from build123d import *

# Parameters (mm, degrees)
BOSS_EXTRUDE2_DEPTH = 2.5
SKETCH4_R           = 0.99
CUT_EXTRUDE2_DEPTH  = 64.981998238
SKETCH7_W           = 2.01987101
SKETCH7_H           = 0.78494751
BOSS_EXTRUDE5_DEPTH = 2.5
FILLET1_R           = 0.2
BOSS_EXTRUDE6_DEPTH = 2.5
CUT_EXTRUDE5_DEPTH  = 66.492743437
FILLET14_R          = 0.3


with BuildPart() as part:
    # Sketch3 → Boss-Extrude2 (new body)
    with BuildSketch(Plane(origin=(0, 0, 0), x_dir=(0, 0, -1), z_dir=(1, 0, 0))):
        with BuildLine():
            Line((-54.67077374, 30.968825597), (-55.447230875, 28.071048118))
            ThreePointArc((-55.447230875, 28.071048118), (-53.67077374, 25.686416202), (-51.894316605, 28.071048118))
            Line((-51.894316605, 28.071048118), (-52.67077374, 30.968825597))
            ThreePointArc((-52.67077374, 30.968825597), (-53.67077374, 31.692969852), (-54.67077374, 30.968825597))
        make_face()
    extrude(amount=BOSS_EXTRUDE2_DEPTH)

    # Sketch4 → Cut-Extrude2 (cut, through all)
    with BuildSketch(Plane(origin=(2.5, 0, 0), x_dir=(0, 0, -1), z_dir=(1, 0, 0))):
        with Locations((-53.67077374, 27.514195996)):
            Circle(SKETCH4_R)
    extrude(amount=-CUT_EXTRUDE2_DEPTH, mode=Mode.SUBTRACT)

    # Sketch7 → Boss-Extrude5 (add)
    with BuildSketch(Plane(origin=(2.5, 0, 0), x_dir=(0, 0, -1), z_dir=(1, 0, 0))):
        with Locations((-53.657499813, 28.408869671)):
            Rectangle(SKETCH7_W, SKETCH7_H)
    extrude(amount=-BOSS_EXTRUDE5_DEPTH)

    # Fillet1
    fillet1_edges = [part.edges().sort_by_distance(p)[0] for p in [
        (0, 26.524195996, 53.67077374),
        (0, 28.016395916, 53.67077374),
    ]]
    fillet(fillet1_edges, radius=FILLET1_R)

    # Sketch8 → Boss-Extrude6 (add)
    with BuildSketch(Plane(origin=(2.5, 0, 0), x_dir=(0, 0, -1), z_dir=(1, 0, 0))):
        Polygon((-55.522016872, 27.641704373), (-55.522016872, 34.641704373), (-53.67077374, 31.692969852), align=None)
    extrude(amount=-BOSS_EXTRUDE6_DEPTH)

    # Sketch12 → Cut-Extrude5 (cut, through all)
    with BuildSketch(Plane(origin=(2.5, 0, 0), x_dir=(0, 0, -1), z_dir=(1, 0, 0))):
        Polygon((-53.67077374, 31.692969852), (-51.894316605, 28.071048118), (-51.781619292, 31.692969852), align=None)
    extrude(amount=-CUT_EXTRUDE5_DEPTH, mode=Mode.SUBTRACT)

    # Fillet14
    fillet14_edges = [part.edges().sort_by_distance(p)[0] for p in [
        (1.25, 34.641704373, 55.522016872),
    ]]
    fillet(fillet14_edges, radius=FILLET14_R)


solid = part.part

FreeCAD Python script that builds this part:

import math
import FreeCAD as App
import Part
import Sketcher

V = App.Vector
Q = App.Units.Quantity


def edges_at(feature, points):
    """Names of the edges that pass closest to the given points."""
    edges = feature.Shape.Edges
    near = lambda p: min(range(len(edges)), key=lambda i: edges[i].distToShape(Part.Vertex(*p))[0])
    return sorted({f"Edge{near(p) + 1}" for p in points})

doc = App.newDocument("Part")
body = doc.addObject("PartDesign::Body", "Body")

sketch1 = body.newObject("Sketcher::SketchObject", "Sketch")
sketch1.AttachmentSupport = (doc.getObject("YZ_Plane"), [""])
sketch1.MapMode = "FlatFace"
sketch1.addGeometry([
    Part.LineSegment(V(31, 54.7, 0), V(28.1, 55.4, 0)),
    Part.ArcOfCircle(Part.Circle(V(27.5, 53.7, 0), V(0, 0, 1), 1.9), math.radians(73), math.radians(287)),
    Part.LineSegment(V(28.1, 51.9, 0), V(31, 52.7, 0)),
    Part.ArcOfCircle(Part.Circle(V(30.6, 53.7, 0), V(0, 0, 1), 1.1), math.radians(-72), math.radians(72)),
], False)
sketch1.addConstraint([
    Sketcher.Constraint("Coincident", 0, 2, 1, 1),
    Sketcher.Constraint("Coincident", 1, 2, 2, 1),
    Sketcher.Constraint("Coincident", 2, 2, 3, 1),
    Sketcher.Constraint("Coincident", 3, 2, 0, 1),
    Sketcher.Constraint("Horizontal", 1, 3, 3, 3),
    Sketcher.Constraint("Vertical", 0, 2, 1, 2),
    Sketcher.Constraint("Vertical", 2, 2, 3, 2),
    Sketcher.Constraint("Angle", 0, Q("165 deg")),
    Sketcher.Constraint("Distance", 0, Q("3 mm")),
    Sketcher.Constraint("DistanceY", 2, 2, 3, 3, Q("1 mm")),
    Sketcher.Constraint("DistanceX", 1, 3, 3, 3, Q("3.1 mm")),
    Sketcher.Constraint("Radius", 1, Q("1.854011 mm")),
    Sketcher.Constraint("DistanceX", -1, 1, 0, 2, Q("28.071048 mm")),
    Sketcher.Constraint("DistanceY", -1, 1, 0, 2, Q("55.447231 mm")),
])
pad1 = body.newObject("PartDesign::Pad", "Pad")
pad1.Profile = sketch1
pad1.Length = 2.5

sketch2 = body.newObject("Sketcher::SketchObject", "Sketch001")
sketch2.AttachmentSupport = (doc.getObject("YZ_Plane"), [""])
sketch2.MapMode = "FlatFace"
sketch2.AttachmentOffset = App.Placement(V(0, 0, 2.5), App.Rotation())
sketch2.addGeometry(Part.Circle(V(27.5, 53.7, 0), V(0, 0, 1), 1), False)
sketch2.addConstraint([
    Sketcher.Constraint("Diameter", 0, Q("1.98 mm")),
    Sketcher.Constraint("DistanceX", -1, 1, 0, 3, Q("27.514196 mm")),
    Sketcher.Constraint("DistanceY", -1, 1, 0, 3, Q("53.670774 mm")),
])
pocket1 = body.newObject("PartDesign::Pocket", "Pocket")
pocket1.Profile = sketch2
pocket1.Type = "ThroughAll"

sketch3 = body.newObject("Sketcher::SketchObject", "Sketch002")
sketch3.AttachmentSupport = (doc.getObject("YZ_Plane"), [""])
sketch3.MapMode = "FlatFace"
sketch3.AttachmentOffset = App.Placement(V(0, 0, 2.5), App.Rotation())
sketch3.addGeometry([
    Part.LineSegment(V(28.8, 54.7, 0), V(28, 54.7, 0)),
    Part.LineSegment(V(28, 54.7, 0), V(28, 52.6, 0)),
    Part.LineSegment(V(28, 52.6, 0), V(28.8, 52.6, 0)),
    Part.LineSegment(V(28.8, 52.6, 0), V(28.8, 54.7, 0)),
], False)
sketch3.addConstraint([
    Sketcher.Constraint("Coincident", 0, 2, 1, 1),
    Sketcher.Constraint("Coincident", 1, 2, 2, 1),
    Sketcher.Constraint("Coincident", 2, 2, 3, 1),
    Sketcher.Constraint("Coincident", 3, 2, 0, 1),
    Sketcher.Constraint("Horizontal", 0),
    Sketcher.Constraint("Vertical", 1),
    Sketcher.Constraint("Horizontal", 2),
    Sketcher.Constraint("Vertical", 3),
    Sketcher.Constraint("DistanceY", 1, 2, 1, 1, Q("2.019871 mm")),
    Sketcher.Constraint("DistanceX", 0, 2, 0, 1, Q("0.784948 mm")),
    Sketcher.Constraint("DistanceX", -1, 1, 0, 2, Q("28.016396 mm")),
    Sketcher.Constraint("DistanceY", -1, 1, 0, 2, Q("54.667435 mm")),
])
pad2 = body.newObject("PartDesign::Pad", "Pad001")
pad2.Profile = sketch3
pad2.Length = 2.5
pad2.Reversed = True
doc.recompute()

fillet = body.newObject("PartDesign::Fillet", "Fillet")
fillet.Base = (pad2, edges_at(pad2, [(0, 26.524, 53.671), (0, 28.016, 53.671)]))
fillet.Radius = 0.2

sketch4 = body.newObject("Sketcher::SketchObject", "Sketch003")
sketch4.AttachmentSupport = (doc.getObject("YZ_Plane"), [""])
sketch4.MapMode = "FlatFace"
sketch4.AttachmentOffset = App.Placement(V(0, 0, 2.5), App.Rotation())
sketch4.addGeometry([
    Part.LineSegment(V(34.6, 55.5, 0), V(27.6, 55.5, 0)),
    Part.LineSegment(V(27.6, 55.5, 0), V(31.7, 53.7, 0)),
    Part.LineSegment(V(31.7, 53.7, 0), V(34.6, 55.5, 0)),
], False)
sketch4.addConstraint([
    Sketcher.Constraint("Coincident", 0, 2, 1, 1),
    Sketcher.Constraint("Coincident", 1, 2, 2, 1),
    Sketcher.Constraint("Coincident", 2, 2, 0, 1),
    Sketcher.Constraint("Horizontal", 0),
    Sketcher.Constraint("DistanceX", 0, 2, 0, 1, Q("7 mm")),
    Sketcher.Constraint("DistanceX", -1, 1, 1, 2, Q("31.69297 mm")),
    Sketcher.Constraint("Distance", 1, Q("4.454195 mm")),
    Sketcher.Constraint("Distance", 2, Q("3.481686 mm")),
    Sketcher.Constraint("DistanceY", -1, 1, 0, 2, Q("55.522017 mm")),
])
pad3 = body.newObject("PartDesign::Pad", "Pad002")
pad3.Profile = sketch4
pad3.Length = 2.5
pad3.Reversed = True

sketch5 = body.newObject("Sketcher::SketchObject", "Sketch004")
sketch5.AttachmentSupport = (doc.getObject("YZ_Plane"), [""])
sketch5.MapMode = "FlatFace"
sketch5.AttachmentOffset = App.Placement(V(0, 0, 2.5), App.Rotation())
sketch5.addGeometry([
    Part.LineSegment(V(31.7, 53.7, 0), V(28.1, 51.9, 0)),
    Part.LineSegment(V(28.1, 51.9, 0), V(31.7, 51.8, 0)),
    Part.LineSegment(V(31.7, 51.8, 0), V(31.7, 53.7, 0)),
], False)
sketch5.addConstraint([
    Sketcher.Constraint("Coincident", 0, 2, 1, 1),
    Sketcher.Constraint("Coincident", 1, 2, 2, 1),
    Sketcher.Constraint("Coincident", 2, 2, 0, 1),
    Sketcher.Constraint("Vertical", 2),
    Sketcher.Constraint("Distance", 0, Q("4.034119 mm")),
    Sketcher.Constraint("DistanceY", 2, 1, 2, 2, Q("1.889154 mm")),
    Sketcher.Constraint("DistanceX", -1, 1, 0, 2, Q("28.071048 mm")),
    Sketcher.Constraint("DistanceX", -1, 1, 1, 2, Q("31.69297 mm")),
    Sketcher.Constraint("DistanceY", -1, 1, 1, 2, Q("51.781619 mm")),
])
pocket2 = body.newObject("PartDesign::Pocket", "Pocket001")
pocket2.Profile = sketch5
pocket2.Type = "ThroughAll"
doc.recompute()

fillet2 = body.newObject("PartDesign::Fillet", "Fillet001")
fillet2.Base = (pocket2, edges_at(pocket2, [(1.25, 34.642, 55.522)]))
fillet2.Radius = 0.3

doc.recompute()
